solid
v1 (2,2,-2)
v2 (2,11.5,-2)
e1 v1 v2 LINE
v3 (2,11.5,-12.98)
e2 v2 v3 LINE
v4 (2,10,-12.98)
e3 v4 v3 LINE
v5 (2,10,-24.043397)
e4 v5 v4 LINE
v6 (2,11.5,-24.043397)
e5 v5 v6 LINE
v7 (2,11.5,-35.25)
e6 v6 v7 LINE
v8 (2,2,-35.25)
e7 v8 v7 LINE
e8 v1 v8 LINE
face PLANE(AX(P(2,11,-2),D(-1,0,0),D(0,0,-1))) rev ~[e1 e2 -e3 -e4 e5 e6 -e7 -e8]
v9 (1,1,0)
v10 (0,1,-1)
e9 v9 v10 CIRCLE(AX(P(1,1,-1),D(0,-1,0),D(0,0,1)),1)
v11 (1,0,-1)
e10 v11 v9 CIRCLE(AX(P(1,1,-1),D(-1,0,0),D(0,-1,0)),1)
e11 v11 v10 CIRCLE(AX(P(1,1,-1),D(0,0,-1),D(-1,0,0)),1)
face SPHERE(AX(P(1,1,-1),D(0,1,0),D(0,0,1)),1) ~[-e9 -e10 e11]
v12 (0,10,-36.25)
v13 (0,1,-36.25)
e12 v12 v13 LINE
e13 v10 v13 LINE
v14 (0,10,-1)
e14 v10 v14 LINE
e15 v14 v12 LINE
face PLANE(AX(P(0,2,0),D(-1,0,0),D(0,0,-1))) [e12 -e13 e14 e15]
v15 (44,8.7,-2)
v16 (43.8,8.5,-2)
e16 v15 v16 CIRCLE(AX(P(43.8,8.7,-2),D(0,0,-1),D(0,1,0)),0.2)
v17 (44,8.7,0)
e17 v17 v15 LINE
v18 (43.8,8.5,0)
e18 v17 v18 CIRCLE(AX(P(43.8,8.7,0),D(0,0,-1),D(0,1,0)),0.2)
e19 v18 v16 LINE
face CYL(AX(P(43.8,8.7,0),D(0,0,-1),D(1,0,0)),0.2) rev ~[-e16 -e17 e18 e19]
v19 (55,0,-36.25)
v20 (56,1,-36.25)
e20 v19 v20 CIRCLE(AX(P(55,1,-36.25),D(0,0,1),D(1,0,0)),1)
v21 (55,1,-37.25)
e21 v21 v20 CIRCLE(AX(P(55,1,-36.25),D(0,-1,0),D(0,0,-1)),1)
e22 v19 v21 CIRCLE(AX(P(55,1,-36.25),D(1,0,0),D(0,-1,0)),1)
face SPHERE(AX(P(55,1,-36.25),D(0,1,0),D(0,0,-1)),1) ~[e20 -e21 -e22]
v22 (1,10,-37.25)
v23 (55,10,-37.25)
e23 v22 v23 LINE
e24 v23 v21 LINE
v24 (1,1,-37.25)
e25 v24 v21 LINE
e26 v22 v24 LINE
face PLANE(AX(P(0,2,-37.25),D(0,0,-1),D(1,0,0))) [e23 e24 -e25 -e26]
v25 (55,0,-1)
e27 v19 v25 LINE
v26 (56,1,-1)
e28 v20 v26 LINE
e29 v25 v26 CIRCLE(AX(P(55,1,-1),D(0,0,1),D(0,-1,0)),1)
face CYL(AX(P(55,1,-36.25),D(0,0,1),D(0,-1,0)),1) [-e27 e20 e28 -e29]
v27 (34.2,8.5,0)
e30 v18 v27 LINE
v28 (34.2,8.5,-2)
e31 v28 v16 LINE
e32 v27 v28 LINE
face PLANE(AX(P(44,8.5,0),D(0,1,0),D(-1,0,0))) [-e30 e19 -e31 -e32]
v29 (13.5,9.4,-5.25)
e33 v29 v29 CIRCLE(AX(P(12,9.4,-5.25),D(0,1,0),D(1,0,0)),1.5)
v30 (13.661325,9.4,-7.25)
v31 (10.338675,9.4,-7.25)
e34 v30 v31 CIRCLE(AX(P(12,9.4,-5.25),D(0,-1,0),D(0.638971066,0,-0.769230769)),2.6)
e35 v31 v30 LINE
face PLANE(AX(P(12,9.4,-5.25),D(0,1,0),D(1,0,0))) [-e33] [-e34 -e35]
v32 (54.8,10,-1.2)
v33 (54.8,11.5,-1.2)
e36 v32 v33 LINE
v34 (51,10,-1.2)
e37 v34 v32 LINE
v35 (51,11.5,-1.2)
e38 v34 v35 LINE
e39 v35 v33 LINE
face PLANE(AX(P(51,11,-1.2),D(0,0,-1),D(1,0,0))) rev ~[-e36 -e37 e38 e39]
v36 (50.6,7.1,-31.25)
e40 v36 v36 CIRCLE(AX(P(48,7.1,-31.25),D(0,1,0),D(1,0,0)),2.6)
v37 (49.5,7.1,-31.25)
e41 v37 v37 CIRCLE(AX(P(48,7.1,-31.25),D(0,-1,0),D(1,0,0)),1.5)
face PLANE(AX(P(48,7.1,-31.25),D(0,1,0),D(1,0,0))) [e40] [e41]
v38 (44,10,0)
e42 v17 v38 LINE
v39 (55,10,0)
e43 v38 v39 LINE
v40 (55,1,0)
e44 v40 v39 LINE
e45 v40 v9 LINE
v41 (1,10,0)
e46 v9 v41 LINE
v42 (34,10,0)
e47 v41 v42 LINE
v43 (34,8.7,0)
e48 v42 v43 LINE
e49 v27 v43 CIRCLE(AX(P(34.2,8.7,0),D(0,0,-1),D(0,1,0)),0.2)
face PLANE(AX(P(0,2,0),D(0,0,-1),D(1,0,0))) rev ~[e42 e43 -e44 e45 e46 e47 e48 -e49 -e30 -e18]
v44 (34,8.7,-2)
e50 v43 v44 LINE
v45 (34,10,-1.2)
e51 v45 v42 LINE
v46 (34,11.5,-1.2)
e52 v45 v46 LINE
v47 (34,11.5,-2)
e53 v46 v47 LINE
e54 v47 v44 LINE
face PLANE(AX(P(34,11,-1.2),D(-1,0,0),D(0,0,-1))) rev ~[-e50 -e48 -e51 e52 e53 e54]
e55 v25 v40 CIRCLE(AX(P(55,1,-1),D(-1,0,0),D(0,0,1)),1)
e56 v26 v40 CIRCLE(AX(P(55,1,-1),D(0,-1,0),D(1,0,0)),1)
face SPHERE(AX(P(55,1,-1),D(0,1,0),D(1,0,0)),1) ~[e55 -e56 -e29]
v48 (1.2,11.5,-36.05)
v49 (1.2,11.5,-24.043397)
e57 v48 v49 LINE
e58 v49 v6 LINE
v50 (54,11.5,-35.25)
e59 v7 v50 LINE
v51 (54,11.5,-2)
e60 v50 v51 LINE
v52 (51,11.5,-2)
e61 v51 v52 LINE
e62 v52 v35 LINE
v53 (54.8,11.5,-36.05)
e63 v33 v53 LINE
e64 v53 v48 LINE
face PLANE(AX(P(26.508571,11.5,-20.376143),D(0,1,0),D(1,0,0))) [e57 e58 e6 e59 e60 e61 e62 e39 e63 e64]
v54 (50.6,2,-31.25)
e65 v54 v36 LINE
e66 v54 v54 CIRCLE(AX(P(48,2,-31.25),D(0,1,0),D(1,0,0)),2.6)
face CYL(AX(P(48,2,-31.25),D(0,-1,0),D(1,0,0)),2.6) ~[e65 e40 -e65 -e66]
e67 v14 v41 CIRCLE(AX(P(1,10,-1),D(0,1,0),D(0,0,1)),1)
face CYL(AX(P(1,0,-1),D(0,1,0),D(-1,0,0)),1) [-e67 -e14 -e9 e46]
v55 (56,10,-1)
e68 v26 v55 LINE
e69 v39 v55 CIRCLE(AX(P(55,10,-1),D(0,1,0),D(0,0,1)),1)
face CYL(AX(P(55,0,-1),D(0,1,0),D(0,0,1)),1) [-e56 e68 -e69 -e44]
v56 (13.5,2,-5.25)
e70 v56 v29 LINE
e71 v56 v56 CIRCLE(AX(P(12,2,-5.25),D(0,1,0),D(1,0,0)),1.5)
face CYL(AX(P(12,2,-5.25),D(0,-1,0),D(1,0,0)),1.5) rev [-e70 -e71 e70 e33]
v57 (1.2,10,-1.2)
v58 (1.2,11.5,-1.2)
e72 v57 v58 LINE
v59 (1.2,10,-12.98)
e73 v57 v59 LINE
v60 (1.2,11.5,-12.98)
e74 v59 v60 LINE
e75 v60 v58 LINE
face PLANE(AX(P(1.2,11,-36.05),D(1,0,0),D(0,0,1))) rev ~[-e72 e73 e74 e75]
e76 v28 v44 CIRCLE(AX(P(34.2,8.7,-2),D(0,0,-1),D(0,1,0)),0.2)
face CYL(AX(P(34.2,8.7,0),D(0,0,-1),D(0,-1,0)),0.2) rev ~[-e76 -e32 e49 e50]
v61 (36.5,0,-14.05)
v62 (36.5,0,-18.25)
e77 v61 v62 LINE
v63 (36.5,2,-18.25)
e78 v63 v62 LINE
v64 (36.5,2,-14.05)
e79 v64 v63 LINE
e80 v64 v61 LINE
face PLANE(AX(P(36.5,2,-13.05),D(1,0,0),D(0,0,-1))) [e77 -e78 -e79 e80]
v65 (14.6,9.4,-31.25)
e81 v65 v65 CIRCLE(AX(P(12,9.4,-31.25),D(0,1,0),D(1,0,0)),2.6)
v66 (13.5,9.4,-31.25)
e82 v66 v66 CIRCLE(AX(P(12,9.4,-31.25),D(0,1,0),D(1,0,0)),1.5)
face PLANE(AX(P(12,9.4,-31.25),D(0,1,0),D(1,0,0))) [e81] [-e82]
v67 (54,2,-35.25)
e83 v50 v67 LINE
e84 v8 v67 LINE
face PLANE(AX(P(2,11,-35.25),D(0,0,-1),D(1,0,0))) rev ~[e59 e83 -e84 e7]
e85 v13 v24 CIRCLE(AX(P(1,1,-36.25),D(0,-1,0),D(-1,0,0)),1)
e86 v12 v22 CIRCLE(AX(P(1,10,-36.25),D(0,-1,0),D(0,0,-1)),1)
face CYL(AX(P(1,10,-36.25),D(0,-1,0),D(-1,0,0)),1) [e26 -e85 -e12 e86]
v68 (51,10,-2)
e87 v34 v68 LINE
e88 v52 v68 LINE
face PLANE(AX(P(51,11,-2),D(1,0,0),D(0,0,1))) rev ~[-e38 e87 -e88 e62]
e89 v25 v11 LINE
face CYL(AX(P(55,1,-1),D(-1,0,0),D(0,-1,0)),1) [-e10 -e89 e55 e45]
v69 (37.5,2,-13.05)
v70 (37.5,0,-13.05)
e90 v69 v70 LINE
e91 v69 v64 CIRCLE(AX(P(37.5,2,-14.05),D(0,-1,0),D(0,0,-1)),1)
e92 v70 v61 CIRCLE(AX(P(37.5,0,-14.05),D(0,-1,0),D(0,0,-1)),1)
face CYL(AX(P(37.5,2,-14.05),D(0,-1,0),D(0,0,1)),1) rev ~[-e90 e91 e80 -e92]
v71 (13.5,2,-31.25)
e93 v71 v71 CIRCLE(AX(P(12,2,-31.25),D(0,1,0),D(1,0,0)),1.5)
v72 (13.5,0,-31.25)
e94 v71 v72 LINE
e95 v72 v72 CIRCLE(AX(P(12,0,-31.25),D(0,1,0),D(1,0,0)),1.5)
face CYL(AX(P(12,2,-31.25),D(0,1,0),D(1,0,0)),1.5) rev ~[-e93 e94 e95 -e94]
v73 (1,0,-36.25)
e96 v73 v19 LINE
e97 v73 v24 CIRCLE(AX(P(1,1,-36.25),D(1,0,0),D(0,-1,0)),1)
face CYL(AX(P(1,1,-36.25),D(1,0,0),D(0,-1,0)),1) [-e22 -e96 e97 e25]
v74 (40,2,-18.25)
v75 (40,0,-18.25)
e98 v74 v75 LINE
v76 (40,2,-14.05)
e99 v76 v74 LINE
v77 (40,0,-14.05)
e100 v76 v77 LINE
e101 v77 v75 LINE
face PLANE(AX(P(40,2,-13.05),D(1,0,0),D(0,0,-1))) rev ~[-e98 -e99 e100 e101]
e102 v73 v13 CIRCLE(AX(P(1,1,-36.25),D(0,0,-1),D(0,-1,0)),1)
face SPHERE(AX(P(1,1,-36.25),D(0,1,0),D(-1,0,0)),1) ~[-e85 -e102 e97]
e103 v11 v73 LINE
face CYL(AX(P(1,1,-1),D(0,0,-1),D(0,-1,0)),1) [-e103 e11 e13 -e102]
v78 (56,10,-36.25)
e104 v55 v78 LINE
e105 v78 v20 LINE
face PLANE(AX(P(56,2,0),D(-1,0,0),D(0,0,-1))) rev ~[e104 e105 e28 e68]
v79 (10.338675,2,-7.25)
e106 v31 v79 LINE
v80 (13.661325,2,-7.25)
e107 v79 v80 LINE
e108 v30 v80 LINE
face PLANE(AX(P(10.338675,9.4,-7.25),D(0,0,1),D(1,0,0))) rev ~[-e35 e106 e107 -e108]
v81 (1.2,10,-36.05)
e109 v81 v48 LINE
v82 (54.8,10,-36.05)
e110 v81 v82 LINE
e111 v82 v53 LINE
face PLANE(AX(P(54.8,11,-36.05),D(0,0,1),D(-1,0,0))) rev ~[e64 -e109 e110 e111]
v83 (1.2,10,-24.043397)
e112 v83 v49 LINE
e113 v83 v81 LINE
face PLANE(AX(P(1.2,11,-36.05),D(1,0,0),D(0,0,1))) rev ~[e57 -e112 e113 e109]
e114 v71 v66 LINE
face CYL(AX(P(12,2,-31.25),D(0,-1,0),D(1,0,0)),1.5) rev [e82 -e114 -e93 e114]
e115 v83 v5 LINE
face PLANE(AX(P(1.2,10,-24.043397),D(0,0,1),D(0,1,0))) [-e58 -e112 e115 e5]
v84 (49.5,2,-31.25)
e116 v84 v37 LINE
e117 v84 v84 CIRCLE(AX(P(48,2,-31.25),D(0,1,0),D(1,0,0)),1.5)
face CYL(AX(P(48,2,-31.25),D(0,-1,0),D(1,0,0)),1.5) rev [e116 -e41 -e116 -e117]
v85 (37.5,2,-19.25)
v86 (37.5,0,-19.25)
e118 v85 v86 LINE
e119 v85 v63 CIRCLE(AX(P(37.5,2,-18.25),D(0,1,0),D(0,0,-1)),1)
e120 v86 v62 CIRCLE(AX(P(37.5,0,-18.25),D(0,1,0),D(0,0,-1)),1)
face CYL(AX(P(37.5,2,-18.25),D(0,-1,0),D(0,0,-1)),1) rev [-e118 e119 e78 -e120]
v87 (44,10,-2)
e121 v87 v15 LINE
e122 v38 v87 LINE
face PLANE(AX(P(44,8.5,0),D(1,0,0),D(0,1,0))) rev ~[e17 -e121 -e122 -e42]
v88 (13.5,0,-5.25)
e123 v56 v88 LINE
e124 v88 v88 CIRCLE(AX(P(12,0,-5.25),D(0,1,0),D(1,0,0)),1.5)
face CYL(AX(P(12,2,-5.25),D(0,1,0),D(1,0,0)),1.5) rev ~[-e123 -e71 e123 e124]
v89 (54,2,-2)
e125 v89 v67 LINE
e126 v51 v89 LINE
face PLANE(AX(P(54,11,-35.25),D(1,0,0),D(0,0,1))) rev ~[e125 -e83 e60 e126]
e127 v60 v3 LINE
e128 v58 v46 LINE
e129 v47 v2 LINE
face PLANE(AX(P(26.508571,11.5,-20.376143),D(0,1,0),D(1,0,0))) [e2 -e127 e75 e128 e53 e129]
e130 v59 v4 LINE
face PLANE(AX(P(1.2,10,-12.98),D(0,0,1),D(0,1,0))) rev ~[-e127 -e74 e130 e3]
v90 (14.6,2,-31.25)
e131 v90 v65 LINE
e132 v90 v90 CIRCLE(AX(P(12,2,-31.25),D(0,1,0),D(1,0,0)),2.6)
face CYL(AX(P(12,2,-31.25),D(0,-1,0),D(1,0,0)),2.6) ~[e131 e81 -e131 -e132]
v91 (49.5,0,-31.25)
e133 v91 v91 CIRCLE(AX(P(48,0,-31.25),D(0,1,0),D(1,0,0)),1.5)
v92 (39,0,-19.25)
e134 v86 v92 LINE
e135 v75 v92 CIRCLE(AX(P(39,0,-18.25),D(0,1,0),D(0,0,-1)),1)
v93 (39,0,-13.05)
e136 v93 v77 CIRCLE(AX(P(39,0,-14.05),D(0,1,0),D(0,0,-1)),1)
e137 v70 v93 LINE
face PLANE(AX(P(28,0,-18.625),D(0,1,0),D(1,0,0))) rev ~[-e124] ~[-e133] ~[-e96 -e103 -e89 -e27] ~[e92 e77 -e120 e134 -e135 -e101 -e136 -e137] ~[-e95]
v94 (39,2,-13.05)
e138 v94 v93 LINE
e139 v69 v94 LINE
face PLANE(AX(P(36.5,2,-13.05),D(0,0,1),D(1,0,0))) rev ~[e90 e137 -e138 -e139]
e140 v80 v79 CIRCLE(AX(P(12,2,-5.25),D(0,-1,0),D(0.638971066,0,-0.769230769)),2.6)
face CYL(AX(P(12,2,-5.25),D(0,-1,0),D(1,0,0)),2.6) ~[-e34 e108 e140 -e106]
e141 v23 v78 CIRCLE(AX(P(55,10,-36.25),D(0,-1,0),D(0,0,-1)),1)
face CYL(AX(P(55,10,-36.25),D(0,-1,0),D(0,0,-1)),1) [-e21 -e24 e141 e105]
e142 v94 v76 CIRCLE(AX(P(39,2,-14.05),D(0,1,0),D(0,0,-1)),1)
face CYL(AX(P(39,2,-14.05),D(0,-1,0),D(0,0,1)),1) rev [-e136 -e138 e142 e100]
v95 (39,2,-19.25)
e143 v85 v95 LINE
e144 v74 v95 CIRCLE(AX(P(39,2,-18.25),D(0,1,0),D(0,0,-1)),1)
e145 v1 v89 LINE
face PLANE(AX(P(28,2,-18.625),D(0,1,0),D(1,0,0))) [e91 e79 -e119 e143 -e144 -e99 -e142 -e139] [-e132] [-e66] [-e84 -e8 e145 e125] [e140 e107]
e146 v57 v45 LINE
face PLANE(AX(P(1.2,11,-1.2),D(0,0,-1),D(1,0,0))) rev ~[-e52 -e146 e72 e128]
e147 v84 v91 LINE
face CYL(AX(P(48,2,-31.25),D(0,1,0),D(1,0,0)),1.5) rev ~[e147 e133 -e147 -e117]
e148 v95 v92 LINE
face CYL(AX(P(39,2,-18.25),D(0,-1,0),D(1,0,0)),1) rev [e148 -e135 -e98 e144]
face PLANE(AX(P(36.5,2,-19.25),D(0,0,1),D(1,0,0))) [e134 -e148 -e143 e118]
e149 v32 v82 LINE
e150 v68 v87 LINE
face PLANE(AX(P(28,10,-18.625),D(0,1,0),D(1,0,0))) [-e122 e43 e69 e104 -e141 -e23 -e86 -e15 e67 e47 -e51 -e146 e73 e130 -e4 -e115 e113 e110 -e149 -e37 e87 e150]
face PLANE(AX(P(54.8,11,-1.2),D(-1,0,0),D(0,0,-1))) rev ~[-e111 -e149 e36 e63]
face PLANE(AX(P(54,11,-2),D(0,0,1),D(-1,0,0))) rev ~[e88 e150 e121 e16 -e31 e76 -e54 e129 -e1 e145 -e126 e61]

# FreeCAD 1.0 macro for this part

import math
import FreeCAD as App
import Part
import Sketcher

V = App.Vector
Q = App.Units.Quantity


def edges_at(feature, points):
    """Names of the edges that pass closest to the given points."""
    edges = feature.Shape.Edges
    near = lambda p: min(range(len(edges)), key=lambda i: edges[i].distToShape(Part.Vertex(*p))[0])
    return sorted({f"Edge{near(p) + 1}" for p in points})

doc = App.newDocument("Part")
params = doc.addObject("Spreadsheet::Sheet", "Params")
for row, (alias, value) in enumerate([
    ("sketch1_width", "56 mm"),
    ("sketch1_height", "37.25 mm"),
    ("pad1_length", "2 mm"),
    ("sketch2_width", "56 mm"),
    ("sketch2_width2", "52 mm"),
    ("sketch2_height", "37.25 mm"),
    ("pad2_length", "9 mm"),
    ("sketch3_diameter", "3 mm"),
    ("sketch3_diameter2", "5.2 mm"),
    ("pad3_length", "7.4 mm"),
    ("sketch4_width", "56 mm"),
    ("sketch4_width2", "53.6 mm"),
    ("sketch4_height", "37.25 mm"),
    ("sketch4_height2", "34.85 mm"),
    ("pocket1_length", "1 mm"),
    ("fillet_radius", "1 mm"),
    ("sketch5_diameter", "3 mm"),
    ("pocket2_length", "10 mm"),
    ("sketch6_width", "10 mm"),
    ("sketch6_height", "2.5 mm"),
    ("pocket3_length", "3 mm"),
    ("fillet2_radius", "1 mm"),
    ("sketch7_radius", "2.6 mm"),
    ("sketch7_height", "2 mm"),
    ("pocket4_length", "7.4 mm"),
    ("sketch8_width", "3.5 mm"),
    ("sketch8_height", "6.2 mm"),
    ("pocket5_length", "10 mm"),
    ("fillet3_radius", "1 mm"),
    ("sketch9_width", "7 mm"),
    ("sketch9_height", "1 mm"),
    ("pocket6_length", "10 mm"),
    ("fillet4_radius", "0.2 mm"),
    ("sketch10_width", "32 mm"),
    ("sketch10_width2", "52 mm"),
    ("sketch10_width3", "3 mm"),
    ("sketch10_width4", "3.8 mm"),
    ("sketch10_width5", "53.6 mm"),
    ("pad4_length", "0.5 mm"),
    ("sketch11_width", "1.5 mm"),
    ("pocket7_length", "2 mm"),
    ("sketch12_diameter", "5.2 mm"),
    ("pocket8_length", "2.3 mm"),
], start=1):
    params.set(f"A{row}", alias)
    params.set(f"B{row}", "=" + value)
    params.setAlias(f"B{row}", alias)

body = doc.addObject("PartDesign::Body", "Body")

# Sketch on XZ plane
sketch1 = body.newObject("Sketcher::SketchObject", "Sketch")
sketch1.AttachmentSupport = (doc.getObject("XZ_Plane"), [""])
sketch1.MapMode = "FlatFace"
sketch1.addGeometry(Part.LineSegment(V(0, -37.25, 0), V(0, 0, 0)), False)
sketch1.addGeometry(Part.LineSegment(V(0, 0, 0), V(56, 0, 0)), False)
sketch1.addGeometry(Part.LineSegment(V(56, 0, 0), V(56, -37.25, 0)), False)
sketch1.addGeometry(Part.LineSegment(V(56, -37.25, 0), V(0, -37.25, 0)), False)
sketch1.addConstraint(Sketcher.Constraint("Coincident", 0, 2, 1, 1))
sketch1.addConstraint(Sketcher.Constraint("Coincident", 1, 2, 2, 1))
sketch1.addConstraint(Sketcher.Constraint("Coincident", 2, 2, 3, 1))
sketch1.addConstraint(Sketcher.Constraint("Coincident", 3, 2, 0, 1))
sketch1.addConstraint(Sketcher.Constraint("Vertical", 0))
sketch1.addConstraint(Sketcher.Constraint("Horizontal", 1))
sketch1.addConstraint(Sketcher.Constraint("Vertical", 2))
sketch1.addConstraint(Sketcher.Constraint("Horizontal", 3))
sketch1.addConstraint(Sketcher.Constraint("Coincident", 0, 2, -1, 1))
sketch1.addConstraint(Sketcher.Constraint("DistanceX", 1, 1, 1, 2, Q("56 mm")))
sketch1.addConstraint(Sketcher.Constraint("DistanceY", 0, 1, 0, 2, Q("37.25 mm")))
sketch1.setExpression("Constraints[9]", "Params.sketch1_width")
sketch1.setExpression("Constraints[10]", "Params.sketch1_height")
pad1 = body.newObject("PartDesign::Pad", "Pad")
pad1.Profile = sketch1
pad1.setExpression("Length", "Params.pad1_length")
pad1.Reversed = True

# Sketch on XZ plane
sketch2 = body.newObject("Sketcher::SketchObject", "Sketch001")
sketch2.AttachmentSupport = (doc.getObject("XZ_Plane"), [""])
sketch2.MapMode = "FlatFace"
sketch2.AttachmentOffset = App.Placement(V(0, 0, -2), App.Rotation())
sketch2.addGeometry(Part.LineSegment(V(0, -37.25, 0), V(0, 0, 0)), False)
sketch2.addGeometry(Part.LineSegment(V(0, 0, 0), V(56, 0, 0)), False)
sketch2.addGeometry(Part.LineSegment(V(56, 0, 0), V(56, -37.25, 0)), False)
sketch2.addGeometry(Part.LineSegment(V(56, -37.25, 0), V(0, -37.25, 0)), False)
sketch2.addGeometry(Part.LineSegment(V(54, -2, 0), V(2, -2, 0)), False)
sketch2.addGeometry(Part.LineSegment(V(2, -2, 0), V(2, -35.25, 0)), False)
sketch2.addGeometry(Part.LineSegment(V(2, -35.25, 0), V(54, -35.25, 0)), False)
sketch2.addGeometry(Part.LineSegment(V(54, -35.25, 0), V(54, -2, 0)), False)
sketch2.addConstraint(Sketcher.Constraint("Coincident", 0, 2, 1, 1))
sketch2.addConstraint(Sketcher.Constraint("Coincident", 1, 2, 2, 1))
sketch2.addConstraint(Sketcher.Constraint("Coincident", 2, 2, 3, 1))
sketch2.addConstraint(Sketcher.Constraint("Coincident", 3, 2, 0, 1))
sketch2.addConstraint(Sketcher.Constraint("Coincident", 4, 2, 5, 1))
sketch2.addConstraint(Sketcher.Constraint("Coincident", 5, 2, 6, 1))
sketch2.addConstraint(Sketcher.Constraint("Coincident", 6, 2, 7, 1))
sketch2.addConstraint(Sketcher.Constraint("Coincident", 7, 2, 4, 1))
sketch2.addConstraint(Sketcher.Constraint("Vertical", 0))
sketch2.addConstraint(Sketcher.Constraint("Horizontal", 1))
sketch2.addConstraint(Sketcher.Constraint("Vertical", 2))
sketch2.addConstraint(Sketcher.Constraint("Horizontal", 3))
sketch2.addConstraint(Sketcher.Constraint("Horizontal", 4))
sketch2.addConstraint(Sketcher.Constraint("Vertical", 5))
sketch2.addConstraint(Sketcher.Constraint("Horizontal", 6))
sketch2.addConstraint(Sketcher.Constraint("Vertical", 7))
sketch2.addConstraint(Sketcher.Constraint("Coincident", 0, 2, -1, 1))
sketch2.addConstraint(Sketcher.Constraint("DistanceX", 1, 1, 1, 2, Q("56 mm")))
sketch2.addConstraint(Sketcher.Constraint("DistanceX", 4, 2, 4, 1, Q("52 mm")))
sketch2.addConstraint(Sketcher.Constraint("DistanceX", -1, 1, 4, 2, Q("2 mm")))
sketch2.addConstraint(Sketcher.Constraint("DistanceY", 4, 2, -1, 1, Q("2 mm")))
sketch2.addConstraint(Sketcher.Constraint("DistanceY", 3, 2, 5, 2, Q("2 mm")))
sketch2.addConstraint(Sketcher.Constraint("DistanceY", 0, 1, 0, 2, Q("37.25 mm")))
sketch2.setExpression("Constraints[17]", "Params.sketch2_width")
sketch2.setExpression("Constraints[18]", "Params.sketch2_width2")
sketch2.setExpression("Constraints[22]", "Params.sketch2_height")
pad2 = body.newObject("PartDesign::Pad", "Pad001")
pad2.Profile = sketch2
pad2.setExpression("Length", "Params.pad2_length")
pad2.Reversed = True

# Sketch on XZ plane
sketch3 = body.newObject("Sketcher::SketchObject", "Sketch002")
sketch3.AttachmentSupport = (doc.getObject("XZ_Plane"), [""])
sketch3.MapMode = "FlatFace"
sketch3.AttachmentOffset = App.Placement(V(0, 0, -2), App.Rotation())
sketch3.addGeometry(Part.Circle(V(12, -5.25, 0), V(0, 0, 1), 2.6), False)
sketch3.addGeometry(Part.Circle(V(12, -5.25, 0), V(0, 0, 1), 1.5), False)
sketch3.addGeometry(Part.Circle(V(12, -31.25, 0), V(0, 0, 1), 2.6), False)
sketch3.addGeometry(Part.Circle(V(12, -31.25, 0), V(0, 0, 1), 1.5), False)
sketch3.addGeometry(Part.Circle(V(48, -31.25, 0), V(0, 0, 1), 2.6), False)
sketch3.addGeometry(Part.Circle(V(48, -31.25, 0), V(0, 0, 1), 1.5), False)
sketch3.addConstraint(Sketcher.Constraint("Coincident", 1, 3, 0, 3))
sketch3.addConstraint(Sketcher.Constraint("Coincident", 3, 3, 2, 3))
sketch3.addConstraint(Sketcher.Constraint("Coincident", 5, 3, 4, 3))
sketch3.addConstraint(Sketcher.Constraint("Equal", 0, 2))
sketch3.addConstraint(Sketcher.Constraint("Equal", 1, 3))
sketch3.addConstraint(Sketcher.Constraint("Equal", 2, 4))
sketch3.addConstraint(Sketcher.Constraint("Equal", 3, 5))
sketch3.addConstraint(Sketcher.Constraint("Horizontal", 3, 3, 4, 3))
sketch3.addConstraint(Sketcher.Constraint("Vertical", 1, 3, 2, 3))
sketch3.addConstraint(Sketcher.Constraint("Diameter", 1, Q("3 mm")))
sketch3.addConstraint(Sketcher.Constraint("Diameter", 0, Q("5.2 mm")))
sketch3.addConstraint(Sketcher.Constraint("DistanceX", -1, 1, 0, 3, Q("12 mm")))
sketch3.addConstraint(Sketcher.Constraint("DistanceX", -1, 1, 4, 3, Q("48 mm")))
sketch3.addConstraint(Sketcher.Constraint("DistanceY", 2, 3, 0, 3, Q("26 mm")))
sketch3.addConstraint(Sketcher.Constraint("DistanceY", 0, 3, -1, 1, Q("5.25 mm")))
sketch3.setExpression("Constraints[9]", "Params.sketch3_diameter")
sketch3.setExpression("Constraints[10]", "Params.sketch3_diameter2")
pad3 = body.newObject("PartDesign::Pad", "Pad002")
pad3.Profile = sketch3
pad3.setExpression("Length", "Params.pad3_length")
pad3.Reversed = True

# Sketch on XZ plane
sketch4 = body.newObject("Sketcher::SketchObject", "Sketch003")
sketch4.AttachmentSupport = (doc.getObject("XZ_Plane"), [""])
sketch4.MapMode = "FlatFace"
sketch4.AttachmentOffset = App.Placement(V(0, 0, -11), App.Rotation())
sketch4.addGeometry(Part.LineSegment(V(0, -37.25, 0), V(0, 0, 0)), False)
sketch4.addGeometry(Part.LineSegment(V(0, 0, 0), V(56, 0, 0)), False)
sketch4.addGeometry(Part.LineSegment(V(56, 0, 0), V(56, -37.25, 0)), False)
sketch4.addGeometry(Part.LineSegment(V(56, -37.25, 0), V(0, -37.25, 0)), False)
sketch4.addGeometry(Part.LineSegment(V(54.8, -1.2, 0), V(1.2, -1.2, 0)), False)
sketch4.addGeometry(Part.LineSegment(V(1.2, -1.2, 0), V(1.2, -36.05, 0)), False)
sketch4.addGeometry(Part.LineSegment(V(1.2, -36.05, 0), V(54.8, -36.05, 0)), False)
sketch4.addGeometry(Part.LineSegment(V(54.8, -36.05, 0), V(54.8, -1.2, 0)), False)
sketch4.addConstraint(Sketcher.Constraint("Coincident", 0, 2, 1, 1))
sketch4.addConstraint(Sketcher.Constraint("Coincident", 1, 2, 2, 1))
sketch4.addConstraint(Sketcher.Constraint("Coincident", 2, 2, 3, 1))
sketch4.addConstraint(Sketcher.Constraint("Coincident", 3, 2, 0, 1))
sketch4.addConstraint(Sketcher.Constraint("Coincident", 4, 2, 5, 1))
sketch4.addConstraint(Sketcher.Constraint("Coincident", 5, 2, 6, 1))
sketch4.addConstraint(Sketcher.Constraint("Coincident", 6, 2, 7, 1))
sketch4.addConstraint(Sketcher.Constraint("Coincident", 7, 2, 4, 1))
sketch4.addConstraint(Sketcher.Constraint("Vertical", 0))
sketch4.addConstraint(Sketcher.Constraint("Horizontal", 1))
sketch4.addConstraint(Sketcher.Constraint("Vertical", 2))
sketch4.addConstraint(Sketcher.Constraint("Horizontal", 3))
sketch4.addConstraint(Sketcher.Constraint("Horizontal", 4))
sketch4.addConstraint(Sketcher.Constraint("Vertical", 5))
sketch4.addConstraint(Sketcher.Constraint("Horizontal", 6))
sketch4.addConstraint(Sketcher.Constraint("Vertical", 7))
sketch4.addConstraint(Sketcher.Constraint("Coincident", 0, 2, -1, 1))
sketch4.addConstraint(Sketcher.Constraint("DistanceX", 1, 1, 1, 2, Q("56 mm")))
sketch4.addConstraint(Sketcher.Constraint("DistanceX", 4, 2, 4, 1, Q("53.6 mm")))
sketch4.addConstraint(Sketcher.Constraint("DistanceY", 0, 1, 0, 2, Q("37.25 mm")))
sketch4.addConstraint(Sketcher.Constraint("DistanceY", 5, 2, 5, 1, Q("34.85 mm")))
sketch4.addConstraint(Sketcher.Constraint("DistanceX", -1, 1, 4, 2, Q("1.2 mm")))
sketch4.addConstraint(Sketcher.Constraint("DistanceY", 4, 2, -1, 1, Q("1.2 mm")))
sketch4.setExpression("Constraints[17]", "Params.sketch4_width")
sketch4.setExpression("Constraints[18]", "Params.sketch4_width2")
sketch4.setExpression("Constraints[19]", "Params.sketch4_height")
sketch4.setExpression("Constraints[20]", "Params.sketch4_height2")
pocket1 = body.newObject("PartDesign::Pocket", "Pocket")
pocket1.Profile = sketch4
pocket1.setExpression("Length", "Params.pocket1_length")
pocket1.Reversed = True
doc.recompute()

fillet = body.newObject("PartDesign::Fillet", "Fillet")
fillet.Base = (pocket1, edges_at(pocket1, [
    (0, 5, -37.25),
    (56, 5, -37.25),
    (56, 5, 0),
    (0, 5, 0),
]))
fillet.setExpression("Radius", "Params.fillet_radius")

# Sketch on XZ plane
sketch5 = body.newObject("Sketcher::SketchObject", "Sketch004")
sketch5.AttachmentSupport = (doc.getObject("XZ_Plane"), [""])
sketch5.MapMode = "FlatFace"
sketch5.AttachmentOffset = App.Placement(V(0, 0, -2), App.Rotation())
sketch5.addGeometry(Part.Circle(V(12, -5.25, 0), V(0, 0, 1), 1.5), False)
sketch5.addGeometry(Part.Circle(V(48, -31.25, 0), V(0, 0, 1), 1.5), False)
sketch5.addGeometry(Part.Circle(V(12, -31.25, 0), V(0, 0, 1), 1.5), False)
sketch5.addConstraint(Sketcher.Constraint("Equal", 0, 1))
sketch5.addConstraint(Sketcher.Constraint("Equal", 1, 2))
sketch5.addConstraint(Sketcher.Constraint("Horizontal", 1, 3, 2, 3))
sketch5.addConstraint(Sketcher.Constraint("Vertical", 0, 3, 2, 3))
sketch5.addConstraint(Sketcher.Constraint("Diameter", 0, Q("3 mm")))
sketch5.addConstraint(Sketcher.Constraint("DistanceX", -1, 1, 0, 3, Q("12 mm")))
sketch5.addConstraint(Sketcher.Constraint("DistanceX", -1, 1, 1, 3, Q("48 mm")))
sketch5.addConstraint(Sketcher.Constraint("DistanceY", 1, 3, 0, 3, Q("26 mm")))
sketch5.addConstraint(Sketcher.Constraint("DistanceY", 0, 3, -1, 1, Q("5.25 mm")))
sketch5.setExpression("Constraints[4]", "Params.sketch5_diameter")
pocket2 = body.newObject("PartDesign::Pocket", "Pocket001")
pocket2.Profile = sketch5
pocket2.setExpression("Length", "Params.pocket2_length")
pocket2.Reversed = True

# Sketch on XY plane
sketch6 = body.newObject("Sketcher::SketchObject", "Sketch005")
sketch6.AttachmentSupport = (doc.getObject("XY_Plane"), [""])
sketch6.MapMode = "FlatFace"
sketch6.addGeometry(Part.LineSegment(V(44, 8.5, 0), V(44, 11, 0)), False)
sketch6.addGeometry(Part.LineSegment(V(44, 11, 0), V(34, 11, 0)), False)
sketch6.addGeometry(Part.LineSegment(V(34, 11, 0), V(34, 8.5, 0)), False)
sketch6.addGeometry(Part.LineSegment(V(34, 8.5, 0), V(44, 8.5, 0)), False)
sketch6.addConstraint(Sketcher.Constraint("Coincident", 0, 2, 1, 1))
sketch6.addConstraint(Sketcher.Constraint("Coincident", 1, 2, 2, 1))
sketch6.addConstraint(Sketcher.Constraint("Coincident", 2, 2, 3, 1))
sketch6.addConstraint(Sketcher.Constraint("Coincident", 3, 2, 0, 1))
sketch6.addConstraint(Sketcher.Constraint("Vertical", 0))
sketch6.addConstraint(Sketcher.Constraint("Horizontal", 1))
sketch6.addConstraint(Sketcher.Constraint("Vertical", 2))
sketch6.addConstraint(Sketcher.Constraint("Horizontal", 3))
sketch6.addConstraint(Sketcher.Constraint("DistanceX", 1, 2, 1, 1, Q("10 mm")))
sketch6.addConstraint(Sketcher.Constraint("DistanceY", 0, 1, 0, 2, Q("2.5 mm")))
sketch6.addConstraint(Sketcher.Constraint("DistanceX", -1, 1, 0, 2, Q("44 mm")))
sketch6.addConstraint(Sketcher.Constraint("DistanceY", -1, 1, 0, 2, Q("11 mm")))
sketch6.setExpression("Constraints[8]", "Params.sketch6_width")
sketch6.setExpression("Constraints[9]", "Params.sketch6_height")
pocket3 = body.newObject("PartDesign::Pocket", "Pocket002")
pocket3.Profile = sketch6
pocket3.setExpression("Length", "Params.pocket3_length")
doc.recompute()

fillet2 = body.newObject("PartDesign::Fillet", "Fillet001")
fillet2.Base = (pocket3, edges_at(pocket3, [
    (28, 0, -37.25),
    (0, 0, -18.625),
    (56, 0, -18.625),
    (28, 0, 0),
    (0.293, 0, -0.293),
    (0.293, 0, -36.957),
    (55.707, 0, -0.293),
    (55.707, 0, -36.957),
]))
fillet2.setExpression("Radius", "Params.fillet2_radius")

# Sketch on XZ plane
sketch7 = body.newObject("Sketcher::SketchObject", "Sketch006")
sketch7.AttachmentSupport = (doc.getObject("XZ_Plane"), [""])
sketch7.MapMode = "FlatFace"
sketch7.AttachmentOffset = App.Placement(V(0, 0, -9.4), App.Rotation())
sketch7.addGeometry(Part.ArcOfCircle(Part.Circle(V(12, -5.25, 0), V(0, 0, 1), 2.6), math.radians(-129.715137), math.radians(-50.284863)), False)
sketch7.addGeometry(Part.LineSegment(V(10.338675, -7.25, 0), V(13.661325, -7.25, 0)), False)
sketch7.addConstraint(Sketcher.Constraint("Coincident", 0, 1, 1, 1))
sketch7.addConstraint(Sketcher.Constraint("Coincident", 1, 2, 0, 2))
sketch7.addConstraint(Sketcher.Constraint("Horizontal", 1))
sketch7.addConstraint(Sketcher.Constraint("Radius", 0, Q("2.6 mm")))
sketch7.addConstraint(Sketcher.Constraint("DistanceX", -1, 1, 0, 3, Q("12 mm")))
sketch7.addConstraint(Sketcher.Constraint("DistanceY", 0, 1, 0, 3, Q("2 mm")))
sketch7.addConstraint(Sketcher.Constraint("DistanceY", 0, 3, -1, 1, Q("5.25 mm")))
sketch7.setExpression("Constraints[3]", "Params.sketch7_radius")
sketch7.setExpression("Constraints[5]", "Params.sketch7_height")
pocket4 = body.newObject("PartDesign::Pocket", "Pocket003")
pocket4.Profile = sketch7
pocket4.setExpression("Length", "Params.pocket4_length")
pocket4.Reversed = True

# Sketch on XZ plane
sketch8 = body.newObject("Sketcher::SketchObject", "Sketch007")
sketch8.AttachmentSupport = (doc.getObject("XZ_Plane"), [""])
sketch8.MapMode = "FlatFace"
sketch8.AttachmentOffset = App.Placement(V(0, 0, -2), App.Rotation())
sketch8.addGeometry(Part.LineSegment(V(36.5, -19.25, 0), V(36.5, -13.05, 0)), False)
sketch8.addGeometry(Part.LineSegment(V(36.5, -13.05, 0), V(40, -13.05, 0)), False)
sketch8.addGeometry(Part.LineSegment(V(40, -13.05, 0), V(40, -19.25, 0)), False)
sketch8.addGeometry(Part.LineSegment(V(40, -19.25, 0), V(36.5, -19.25, 0)), False)
sketch8.addConstraint(Sketcher.Constraint("Coincident", 0, 2, 1, 1))
sketch8.addConstraint(Sketcher.Constraint("Coincident", 1, 2, 2, 1))
sketch8.addConstraint(Sketcher.Constraint("Coincident", 2, 2, 3, 1))
sketch8.addConstraint(Sketcher.Constraint("Coincident", 3, 2, 0, 1))
sketch8.addConstraint(Sketcher.Constraint("Vertical", 0))
sketch8.addConstraint(Sketcher.Constraint("Horizontal", 1))
sketch8.addConstraint(Sketcher.Constraint("Vertical", 2))
sketch8.addConstraint(Sketcher.Constraint("Horizontal", 3))
sketch8.addConstraint(Sketcher.Constraint("DistanceX", 1, 1, 1, 2, Q("3.5 mm")))
sketch8.addConstraint(Sketcher.Constraint("DistanceY", 0, 1, 0, 2, Q("6.2 mm")))
sketch8.addConstraint(Sketcher.Constraint("DistanceX", -1, 1, 1, 2, Q("40 mm")))
sketch8.addConstraint(Sketcher.Constraint("DistanceY", 0, 2, -1, 1, Q("13.05 mm")))
sketch8.setExpression("Constraints[8]", "Params.sketch8_width")
sketch8.setExpression("Constraints[9]", "Params.sketch8_height")
pocket5 = body.newObject("PartDesign::Pocket", "Pocket004")
pocket5.Profile = sketch8
pocket5.setExpression("Length", "Params.pocket5_length")
pocket5.Reversed = True
doc.recompute()

fillet3 = body.newObject("PartDesign::Fillet", "Fillet002")
fillet3.Base = (pocket5, edges_at(pocket5, [
    (36.5, 1, -13.05),
    (36.5, 1, -19.25),
    (40, 1, -19.25),
    (40, 1, -13.05),
]))
fillet3.setExpression("Radius", "Params.fillet3_radius")

# Sketch on XY plane
sketch9 = body.newObject("Sketcher::SketchObject", "Sketch008")
sketch9.AttachmentSupport = (doc.getObject("XY_Plane"), [""])
sketch9.MapMode = "FlatFace"
sketch9.AttachmentOffset = App.Placement(V(0, 0, -1.2), App.Rotation())
sketch9.addGeometry(Part.LineSegment(V(44, 11, 0), V(44, 10, 0)), False)
sketch9.addGeometry(Part.LineSegment(V(44, 10, 0), V(51, 10, 0)), False)
sketch9.addGeometry(Part.LineSegment(V(51, 10, 0), V(51, 11, 0)), False)
sketch9.addGeometry(Part.LineSegment(V(51, 11, 0), V(44, 11, 0)), False)
sketch9.addConstraint(Sketcher.Constraint("Coincident", 0, 2, 1, 1))
sketch9.addConstraint(Sketcher.Constraint("Coincident", 1, 2, 2, 1))
sketch9.addConstraint(Sketcher.Constraint("Coincident", 2, 2, 3, 1))
sketch9.addConstraint(Sketcher.Constraint("Coincident", 3, 2, 0, 1))
sketch9.addConstraint(Sketcher.Constraint("Vertical", 0))
sketch9.addConstraint(Sketcher.Constraint("Horizontal", 1))
sketch9.addConstraint(Sketcher.Constraint("Vertical", 2))
sketch9.addConstraint(Sketcher.Constraint("Horizontal", 3))
sketch9.addConstraint(Sketcher.Constraint("DistanceX", 1, 1, 1, 2, Q("7 mm")))
sketch9.addConstraint(Sketcher.Constraint("DistanceY", 0, 2, 0, 1, Q("1 mm")))
sketch9.addConstraint(Sketcher.Constraint("DistanceX", -1, 1, 0, 2, Q("44 mm")))
sketch9.addConstraint(Sketcher.Constraint("DistanceY", -1, 1, 0, 2, Q("10 mm")))
sketch9.setExpression("Constraints[8]", "Params.sketch9_width")
sketch9.setExpression("Constraints[9]", "Params.sketch9_height")
pocket6 = body.newObject("PartDesign::Pocket", "Pocket005")
pocket6.Profile = sketch9
pocket6.setExpression("Length", "Params.pocket6_length")
doc.recompute()

fillet4 = body.newObject("PartDesign::Fillet", "Fillet003")
fillet4.Base = (pocket6, edges_at(pocket6, [(44, 8.5, -1), (34, 8.5, -1)]))
fillet4.setExpression("Radius", "Params.fillet4_radius")

# Sketch on XZ plane
sketch10 = body.newObject("Sketcher::SketchObject", "Sketch009")
sketch10.AttachmentSupport = (doc.getObject("XZ_Plane"), [""])
sketch10.MapMode = "FlatFace"
sketch10.AttachmentOffset = App.Placement(V(0, 0, -11), App.Rotation())
sketch10.addGeometry(Part.LineSegment(V(51, -2, 0), V(51, -1.2, 0)), False)
sketch10.addGeometry(Part.LineSegment(V(51, -1.2, 0), V(54.8, -1.2, 0)), False)
sketch10.addGeometry(Part.LineSegment(V(54.8, -1.2, 0), V(54.8, -36.05, 0)), False)
sketch10.addGeometry(Part.LineSegment(V(54.8, -36.05, 0), V(1.2, -36.05, 0)), False)
sketch10.addGeometry(Part.LineSegment(V(1.2, -36.05, 0), V(1.2, -1.2, 0)), False)
sketch10.addGeometry(Part.LineSegment(V(1.2, -1.2, 0), V(34, -1.2, 0)), False)
sketch10.addGeometry(Part.LineSegment(V(34, -1.2, 0), V(34, -2, 0)), False)
sketch10.addGeometry(Part.LineSegment(V(34, -2, 0), V(2, -2, 0)), False)
sketch10.addGeometry(Part.LineSegment(V(2, -2, 0), V(2, -35.25, 0)), False)
sketch10.addGeometry(Part.LineSegment(V(2, -35.25, 0), V(54, -35.25, 0)), False)
sketch10.addGeometry(Part.LineSegment(V(54, -35.25, 0), V(54, -2, 0)), False)
sketch10.addGeometry(Part.LineSegment(V(54, -2, 0), V(51, -2, 0)), False)
sketch10.addConstraint(Sketcher.Constraint("Coincident", 0, 2, 1, 1))
sketch10.addConstraint(Sketcher.Constraint("Coincident", 1, 2, 2, 1))
sketch10.addConstraint(Sketcher.Constraint("Coincident", 2, 2, 3, 1))
sketch10.addConstraint(Sketcher.Constraint("Coincident", 3, 2, 4, 1))
sketch10.addConstraint(Sketcher.Constraint("Coincident", 4, 2, 5, 1))
sketch10.addConstraint(Sketcher.Constraint("Coincident", 5, 2, 6, 1))
sketch10.addConstraint(Sketcher.Constraint("Coincident", 6, 2, 7, 1))
sketch10.addConstraint(Sketcher.Constraint("Coincident", 7, 2, 8, 1))
sketch10.addConstraint(Sketcher.Constraint("Coincident", 8, 2, 9, 1))
sketch10.addConstraint(Sketcher.Constraint("Coincident", 9, 2, 10, 1))
sketch10.addConstraint(Sketcher.Constraint("Coincident", 10, 2, 11, 1))
sketch10.addConstraint(Sketcher.Constraint("Coincident", 11, 2, 0, 1))
sketch10.addConstraint(Sketcher.Constraint("Vertical", 0))
sketch10.addConstraint(Sketcher.Constraint("Horizontal", 1))
sketch10.addConstraint(Sketcher.Constraint("Vertical", 2))
sketch10.addConstraint(Sketcher.Constraint("Horizontal", 3))
sketch10.addConstraint(Sketcher.Constraint("Vertical", 4))
sketch10.addConstraint(Sketcher.Constraint("Horizontal", 5))
sketch10.addConstraint(Sketcher.Constraint("Vertical", 6))
sketch10.addConstraint(Sketcher.Constraint("Horizontal", 7))
sketch10.addConstraint(Sketcher.Constraint("Vertical", 8))
sketch10.addConstraint(Sketcher.Constraint("Horizontal", 9))
sketch10.addConstraint(Sketcher.Constraint("Vertical", 10))
sketch10.addConstraint(Sketcher.Constraint("Horizontal", 11))
sketch10.addConstraint(Sketcher.Constraint("Horizontal", 1, 2, 4, 2))
sketch10.addConstraint(Sketcher.Constraint("Horizontal", 7, 2, 10, 2))
sketch10.addConstraint(Sketcher.Constraint("DistanceX", 7, 2, 7, 1, Q("32 mm")))
sketch10.addConstraint(Sketcher.Constraint("DistanceX", 9, 1, 9, 2, Q("52 mm")))
sketch10.addConstraint(Sketcher.Constraint("DistanceX", 11, 2, 11, 1, Q("3 mm")))
sketch10.addConstraint(Sketcher.Constraint("DistanceX", 1, 1, 1, 2, Q("3.8 mm")))
sketch10.addConstraint(Sketcher.Constraint("DistanceX", 3, 2, 3, 1, Q("53.6 mm")))
sketch10.addConstraint(Sketcher.Constraint("DistanceY", 0, 1, 0, 2, Q("0.8 mm")))
sketch10.addConstraint(Sketcher.Constraint("DistanceX", -1, 1, 0, 2, Q("51 mm")))
sketch10.addConstraint(Sketcher.Constraint("DistanceY", 6, 2, -1, 1, Q("2 mm")))
sketch10.addConstraint(Sketcher.Constraint("DistanceY", 2, 2, 2, 1, Q("34.85 mm")))
sketch10.addConstraint(Sketcher.Constraint("DistanceY", 8, 2, 8, 1, Q("33.25 mm")))
sketch10.setExpression("Constraints[26]", "Params.sketch10_width")
sketch10.setExpression("Constraints[27]", "Params.sketch10_width2")
sketch10.setExpression("Constraints[28]", "Params.sketch10_width3")
sketch10.setExpression("Constraints[29]", "Params.sketch10_width4")
sketch10.setExpression("Constraints[30]", "Params.sketch10_width5")
pad4 = body.newObject("PartDesign::Pad", "Pad003")
pad4.Profile = sketch10
pad4.setExpression("Length", "Params.pad4_length")
pad4.Reversed = True

# Sketch on YZ plane
sketch11 = body.newObject("Sketcher::SketchObject", "Sketch010")
sketch11.AttachmentSupport = (doc.getObject("YZ_Plane"), [""])
sketch11.MapMode = "FlatFace"
sketch11.AttachmentOffset = App.Placement(V(0, 0, 1.2), App.Rotation())
sketch11.addGeometry(Part.LineSegment(V(11.5, -24.043397, 0), V(10, -24.043397, 0)), False)
sketch11.addGeometry(Part.LineSegment(V(10, -24.043397, 0), V(10, -12.98, 0)), False)
sketch11.addGeometry(Part.LineSegment(V(10, -12.98, 0), V(11.5, -12.98, 0)), False)
sketch11.addGeometry(Part.LineSegment(V(11.5, -12.98, 0), V(11.5, -24.043397, 0)), False)
sketch11.addConstraint(Sketcher.Constraint("Coincident", 0, 2, 1, 1))
sketch11.addConstraint(Sketcher.Constraint("Coincident", 1, 2, 2, 1))
sketch11.addConstraint(Sketcher.Constraint("Coincident", 2, 2, 3, 1))
sketch11.addConstraint(Sketcher.Constraint("Coincident", 3, 2, 0, 1))
sketch11.addConstraint(Sketcher.Constraint("Horizontal", 0))
sketch11.addConstraint(Sketcher.Constraint("Vertical", 1))
sketch11.addConstraint(Sketcher.Constraint("Horizontal", 2))
sketch11.addConstraint(Sketcher.Constraint("Vertical", 3))
sketch11.addConstraint(Sketcher.Constraint("DistanceX", 0, 2, 0, 1, Q("1.5 mm")))
sketch11.addConstraint(Sketcher.Constraint("DistanceX", -1, 1, 0, 2, Q("10 mm")))
sketch11.addConstraint(Sketcher.Constraint("DistanceY", 1, 2, -1, 1, Q("12.98 mm")))
sketch11.addConstraint(Sketcher.Constraint("DistanceY", 1, 1, 1, 2, Q("11.063397 mm")))
sketch11.setExpression("Constraints[8]", "Params.sketch11_width")
pocket7 = body.newObject("PartDesign::Pocket", "Pocket006")
pocket7.Profile = sketch11
pocket7.setExpression("Length", "Params.pocket7_length")
pocket7.Reversed = True

# Sketch on XZ plane
sketch12 = body.newObject("Sketcher::SketchObject", "Sketch011")
sketch12.AttachmentSupport = (doc.getObject("XZ_Plane"), [""])
sketch12.MapMode = "FlatFace"
sketch12.AttachmentOffset = App.Placement(V(0, 0, -9.4), App.Rotation())
sketch12.addGeometry(Part.Circle(V(48, -31.25, 0), V(0, 0, 1), 2.6), False)
sketch12.addConstraint(Sketcher.Constraint("Diameter", 0, Q("5.2 mm")))
sketch12.addConstraint(Sketcher.Constraint("DistanceX", -1, 1, 0, 3, Q("48 mm")))
sketch12.addConstraint(Sketcher.Constraint("DistanceY", 0, 3, -1, 1, Q("31.25 mm")))
sketch12.setExpression("Constraints[0]", "Params.sketch12_diameter")
pocket8 = body.newObject("PartDesign::Pocket", "Pocket007")
pocket8.Profile = sketch12
pocket8.setExpression("Length", "Params.pocket8_length")
pocket8.Reversed = True

doc.recompute()
